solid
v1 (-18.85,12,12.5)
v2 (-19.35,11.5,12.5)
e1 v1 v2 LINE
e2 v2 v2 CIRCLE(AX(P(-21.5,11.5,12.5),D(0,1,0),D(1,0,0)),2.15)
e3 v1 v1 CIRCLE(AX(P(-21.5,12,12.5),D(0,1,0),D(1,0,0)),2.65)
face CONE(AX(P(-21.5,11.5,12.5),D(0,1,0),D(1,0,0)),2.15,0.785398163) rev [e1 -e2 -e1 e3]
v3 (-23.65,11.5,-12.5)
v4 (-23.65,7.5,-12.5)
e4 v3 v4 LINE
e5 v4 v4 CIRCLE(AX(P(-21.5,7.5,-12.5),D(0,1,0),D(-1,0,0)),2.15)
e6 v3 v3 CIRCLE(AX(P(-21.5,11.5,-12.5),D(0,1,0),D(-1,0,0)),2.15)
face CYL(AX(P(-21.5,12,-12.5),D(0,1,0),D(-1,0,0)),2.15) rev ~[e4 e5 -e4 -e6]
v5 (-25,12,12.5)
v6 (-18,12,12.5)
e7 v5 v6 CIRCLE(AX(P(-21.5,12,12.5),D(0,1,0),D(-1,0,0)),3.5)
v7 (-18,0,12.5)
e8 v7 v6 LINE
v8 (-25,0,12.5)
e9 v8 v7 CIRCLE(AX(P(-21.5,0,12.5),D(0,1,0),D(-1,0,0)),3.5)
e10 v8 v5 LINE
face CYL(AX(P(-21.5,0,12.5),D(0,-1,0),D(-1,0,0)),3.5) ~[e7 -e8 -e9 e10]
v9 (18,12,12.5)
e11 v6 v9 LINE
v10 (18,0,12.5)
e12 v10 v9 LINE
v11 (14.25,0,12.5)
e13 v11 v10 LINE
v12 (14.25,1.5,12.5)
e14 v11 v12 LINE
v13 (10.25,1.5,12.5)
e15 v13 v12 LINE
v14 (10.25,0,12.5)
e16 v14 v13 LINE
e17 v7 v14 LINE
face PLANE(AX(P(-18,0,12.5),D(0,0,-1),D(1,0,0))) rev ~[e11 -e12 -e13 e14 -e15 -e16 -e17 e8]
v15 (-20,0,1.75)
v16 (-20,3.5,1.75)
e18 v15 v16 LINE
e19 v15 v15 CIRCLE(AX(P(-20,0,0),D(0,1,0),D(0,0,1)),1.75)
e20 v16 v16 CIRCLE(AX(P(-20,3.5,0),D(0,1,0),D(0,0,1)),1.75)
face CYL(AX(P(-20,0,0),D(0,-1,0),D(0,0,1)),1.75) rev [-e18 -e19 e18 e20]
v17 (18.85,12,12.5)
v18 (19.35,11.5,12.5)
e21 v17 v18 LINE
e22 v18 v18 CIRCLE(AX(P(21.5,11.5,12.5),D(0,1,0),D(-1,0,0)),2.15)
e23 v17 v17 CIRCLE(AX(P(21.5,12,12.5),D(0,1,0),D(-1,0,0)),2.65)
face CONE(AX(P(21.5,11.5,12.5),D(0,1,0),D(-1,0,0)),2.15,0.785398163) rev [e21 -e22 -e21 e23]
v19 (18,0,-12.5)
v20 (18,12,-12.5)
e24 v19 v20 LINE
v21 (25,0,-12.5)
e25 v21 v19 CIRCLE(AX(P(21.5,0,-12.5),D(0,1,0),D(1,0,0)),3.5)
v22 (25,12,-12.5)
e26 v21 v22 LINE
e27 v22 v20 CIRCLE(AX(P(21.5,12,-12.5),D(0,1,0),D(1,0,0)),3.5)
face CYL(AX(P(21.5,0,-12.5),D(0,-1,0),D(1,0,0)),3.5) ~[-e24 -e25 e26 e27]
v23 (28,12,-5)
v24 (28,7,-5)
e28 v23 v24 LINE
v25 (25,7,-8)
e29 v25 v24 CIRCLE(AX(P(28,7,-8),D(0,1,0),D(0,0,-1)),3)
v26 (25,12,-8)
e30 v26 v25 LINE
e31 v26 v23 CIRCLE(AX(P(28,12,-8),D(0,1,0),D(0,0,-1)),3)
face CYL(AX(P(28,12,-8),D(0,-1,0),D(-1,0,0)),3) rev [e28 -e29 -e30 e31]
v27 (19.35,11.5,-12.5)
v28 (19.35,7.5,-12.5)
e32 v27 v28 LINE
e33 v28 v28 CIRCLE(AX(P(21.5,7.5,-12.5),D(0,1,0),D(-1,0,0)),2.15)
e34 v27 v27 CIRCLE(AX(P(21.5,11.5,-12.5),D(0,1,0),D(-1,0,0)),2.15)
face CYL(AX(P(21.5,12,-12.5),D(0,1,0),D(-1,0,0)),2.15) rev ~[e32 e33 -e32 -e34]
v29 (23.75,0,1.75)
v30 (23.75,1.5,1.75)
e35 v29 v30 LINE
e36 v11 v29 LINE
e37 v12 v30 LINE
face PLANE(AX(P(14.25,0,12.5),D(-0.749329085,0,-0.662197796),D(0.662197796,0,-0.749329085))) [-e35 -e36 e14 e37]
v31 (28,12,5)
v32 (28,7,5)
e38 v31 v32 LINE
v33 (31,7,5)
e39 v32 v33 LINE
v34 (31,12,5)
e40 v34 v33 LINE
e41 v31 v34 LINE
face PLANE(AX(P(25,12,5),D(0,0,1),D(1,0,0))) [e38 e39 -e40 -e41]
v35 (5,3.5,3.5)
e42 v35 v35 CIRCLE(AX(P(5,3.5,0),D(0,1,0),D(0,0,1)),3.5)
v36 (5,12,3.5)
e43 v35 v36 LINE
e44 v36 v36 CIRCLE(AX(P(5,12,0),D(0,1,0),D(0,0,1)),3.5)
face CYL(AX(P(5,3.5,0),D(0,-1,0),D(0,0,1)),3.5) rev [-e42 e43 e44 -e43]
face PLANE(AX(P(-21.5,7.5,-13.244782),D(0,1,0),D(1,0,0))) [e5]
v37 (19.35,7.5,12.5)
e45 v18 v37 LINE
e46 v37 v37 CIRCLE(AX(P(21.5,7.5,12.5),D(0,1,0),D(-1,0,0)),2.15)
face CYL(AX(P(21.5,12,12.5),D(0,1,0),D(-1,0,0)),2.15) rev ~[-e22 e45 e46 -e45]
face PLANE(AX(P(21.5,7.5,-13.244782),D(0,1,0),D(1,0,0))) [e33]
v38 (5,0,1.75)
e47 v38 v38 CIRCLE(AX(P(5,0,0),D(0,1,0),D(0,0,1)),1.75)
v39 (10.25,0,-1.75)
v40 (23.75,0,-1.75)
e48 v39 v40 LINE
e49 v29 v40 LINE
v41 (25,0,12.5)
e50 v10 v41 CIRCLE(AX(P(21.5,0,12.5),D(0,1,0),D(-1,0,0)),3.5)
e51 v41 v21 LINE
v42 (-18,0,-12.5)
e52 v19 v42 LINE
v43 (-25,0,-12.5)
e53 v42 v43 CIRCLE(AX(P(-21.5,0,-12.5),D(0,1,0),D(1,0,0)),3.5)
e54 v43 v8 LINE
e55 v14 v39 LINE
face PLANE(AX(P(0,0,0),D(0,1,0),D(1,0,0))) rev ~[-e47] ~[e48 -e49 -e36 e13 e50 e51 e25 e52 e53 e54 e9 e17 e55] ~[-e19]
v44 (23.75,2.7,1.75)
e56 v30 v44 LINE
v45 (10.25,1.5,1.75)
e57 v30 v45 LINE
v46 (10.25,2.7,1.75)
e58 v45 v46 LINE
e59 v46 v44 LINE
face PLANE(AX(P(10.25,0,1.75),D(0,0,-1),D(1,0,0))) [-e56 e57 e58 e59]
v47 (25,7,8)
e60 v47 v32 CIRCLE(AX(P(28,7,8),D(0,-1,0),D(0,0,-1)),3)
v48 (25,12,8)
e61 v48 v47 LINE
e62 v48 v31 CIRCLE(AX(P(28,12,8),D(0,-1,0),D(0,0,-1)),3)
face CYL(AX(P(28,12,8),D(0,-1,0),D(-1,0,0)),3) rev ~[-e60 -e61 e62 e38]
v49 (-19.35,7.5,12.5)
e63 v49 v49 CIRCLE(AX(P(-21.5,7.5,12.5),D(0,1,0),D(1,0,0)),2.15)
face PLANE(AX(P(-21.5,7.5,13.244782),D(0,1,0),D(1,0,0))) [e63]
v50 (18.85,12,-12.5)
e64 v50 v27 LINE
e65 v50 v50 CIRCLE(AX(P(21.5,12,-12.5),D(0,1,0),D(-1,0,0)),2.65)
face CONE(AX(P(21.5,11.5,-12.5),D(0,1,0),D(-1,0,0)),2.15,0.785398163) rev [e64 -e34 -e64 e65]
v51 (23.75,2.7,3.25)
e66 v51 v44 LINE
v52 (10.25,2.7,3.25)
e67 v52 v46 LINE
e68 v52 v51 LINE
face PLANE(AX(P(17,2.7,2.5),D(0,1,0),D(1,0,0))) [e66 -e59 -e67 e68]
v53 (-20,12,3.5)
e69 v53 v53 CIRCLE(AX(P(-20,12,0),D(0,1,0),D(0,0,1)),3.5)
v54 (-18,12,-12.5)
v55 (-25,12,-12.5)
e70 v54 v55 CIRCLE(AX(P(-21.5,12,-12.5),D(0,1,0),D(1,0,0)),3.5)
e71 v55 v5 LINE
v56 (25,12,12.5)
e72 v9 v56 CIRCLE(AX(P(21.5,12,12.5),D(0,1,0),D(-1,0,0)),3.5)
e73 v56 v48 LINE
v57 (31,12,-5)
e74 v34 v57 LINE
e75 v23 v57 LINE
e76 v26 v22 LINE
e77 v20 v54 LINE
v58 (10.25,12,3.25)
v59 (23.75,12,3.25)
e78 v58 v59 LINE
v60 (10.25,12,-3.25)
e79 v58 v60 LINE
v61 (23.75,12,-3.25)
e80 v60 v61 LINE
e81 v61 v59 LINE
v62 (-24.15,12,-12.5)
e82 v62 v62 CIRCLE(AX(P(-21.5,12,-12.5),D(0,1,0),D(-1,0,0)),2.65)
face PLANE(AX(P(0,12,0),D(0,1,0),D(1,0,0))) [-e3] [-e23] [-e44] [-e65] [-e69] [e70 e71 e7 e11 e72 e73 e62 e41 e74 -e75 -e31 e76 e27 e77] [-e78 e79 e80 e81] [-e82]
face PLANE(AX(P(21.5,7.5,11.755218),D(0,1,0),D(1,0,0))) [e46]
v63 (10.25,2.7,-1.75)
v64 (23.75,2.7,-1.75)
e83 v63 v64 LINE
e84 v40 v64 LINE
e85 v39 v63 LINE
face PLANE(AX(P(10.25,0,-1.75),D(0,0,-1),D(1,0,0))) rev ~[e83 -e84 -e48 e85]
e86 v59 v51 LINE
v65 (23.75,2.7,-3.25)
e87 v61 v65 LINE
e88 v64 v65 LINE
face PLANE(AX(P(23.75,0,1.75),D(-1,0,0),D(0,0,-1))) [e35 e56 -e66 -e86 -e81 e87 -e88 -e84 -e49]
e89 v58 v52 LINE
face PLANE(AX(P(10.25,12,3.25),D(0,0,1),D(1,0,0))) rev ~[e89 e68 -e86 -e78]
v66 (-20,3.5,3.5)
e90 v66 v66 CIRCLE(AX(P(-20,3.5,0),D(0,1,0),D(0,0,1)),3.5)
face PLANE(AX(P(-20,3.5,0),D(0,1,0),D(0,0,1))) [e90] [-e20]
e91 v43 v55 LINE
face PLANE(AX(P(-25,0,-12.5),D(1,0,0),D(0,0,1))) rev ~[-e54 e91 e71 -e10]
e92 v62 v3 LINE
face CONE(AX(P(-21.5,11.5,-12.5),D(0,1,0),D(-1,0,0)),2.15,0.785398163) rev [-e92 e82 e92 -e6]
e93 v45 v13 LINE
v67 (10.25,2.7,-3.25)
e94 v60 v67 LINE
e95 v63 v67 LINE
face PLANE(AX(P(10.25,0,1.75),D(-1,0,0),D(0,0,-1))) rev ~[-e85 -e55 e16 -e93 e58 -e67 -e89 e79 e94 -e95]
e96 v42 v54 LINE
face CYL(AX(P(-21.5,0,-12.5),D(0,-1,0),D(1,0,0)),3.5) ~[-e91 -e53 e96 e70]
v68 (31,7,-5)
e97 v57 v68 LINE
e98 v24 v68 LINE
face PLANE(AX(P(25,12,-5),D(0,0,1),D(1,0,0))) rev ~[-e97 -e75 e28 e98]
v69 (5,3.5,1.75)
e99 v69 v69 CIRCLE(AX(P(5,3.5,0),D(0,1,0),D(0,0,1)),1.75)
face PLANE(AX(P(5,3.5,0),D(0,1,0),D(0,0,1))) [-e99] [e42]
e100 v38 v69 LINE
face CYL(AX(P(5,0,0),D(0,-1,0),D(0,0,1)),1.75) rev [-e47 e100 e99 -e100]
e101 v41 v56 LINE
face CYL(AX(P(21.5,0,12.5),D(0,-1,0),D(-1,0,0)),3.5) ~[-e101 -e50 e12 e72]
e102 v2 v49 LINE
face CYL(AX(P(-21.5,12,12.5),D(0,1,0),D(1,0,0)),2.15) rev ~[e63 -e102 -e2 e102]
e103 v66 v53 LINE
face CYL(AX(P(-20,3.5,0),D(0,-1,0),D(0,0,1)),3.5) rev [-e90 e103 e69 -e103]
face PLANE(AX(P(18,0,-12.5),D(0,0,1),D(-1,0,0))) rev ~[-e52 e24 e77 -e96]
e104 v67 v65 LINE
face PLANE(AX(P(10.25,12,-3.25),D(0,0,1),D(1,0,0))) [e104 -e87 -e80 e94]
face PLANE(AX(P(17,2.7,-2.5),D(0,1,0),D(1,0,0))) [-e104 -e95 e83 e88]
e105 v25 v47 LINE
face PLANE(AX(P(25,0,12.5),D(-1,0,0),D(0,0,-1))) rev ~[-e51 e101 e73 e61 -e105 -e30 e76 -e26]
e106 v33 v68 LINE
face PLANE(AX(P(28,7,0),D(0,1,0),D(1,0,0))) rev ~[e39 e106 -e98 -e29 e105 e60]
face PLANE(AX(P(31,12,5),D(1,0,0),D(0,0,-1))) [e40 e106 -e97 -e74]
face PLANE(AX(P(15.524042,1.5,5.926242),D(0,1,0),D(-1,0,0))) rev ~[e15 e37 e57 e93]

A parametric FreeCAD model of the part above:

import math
import FreeCAD as App
import Part
import Sketcher

V = App.Vector


def edges_at(feature, points):
    """Names of the edges that pass closest to the given points."""
    edges = feature.Shape.Edges
    near = lambda p: min(range(len(edges)), key=lambda i: edges[i].distToShape(Part.Vertex(*p))[0])
    return sorted({f"Edge{near(p) + 1}" for p in points})

doc = App.newDocument("Part")
body = doc.addObject("PartDesign::Body", "Body")

# Sketch on XZ plane
sketch1 = body.newObject("Sketcher::SketchObject", "Sketch")
sketch1.AttachmentSupport = (doc.getObject("XZ_Plane"), [""])
sketch1.MapMode = "FlatFace"
sketch1.addGeometry([
    Part.LineSegment(V(-18, 12.5, 0), V(18, 12.5, 0)),  # 0
    Part.ArcOfCircle(Part.Circle(V(21.5, 12.5, 0), V(0, 0, 1), 3.5), math.radians(0), math.radians(180)),  # 1
    Part.LineSegment(V(25, 12.5, 0), V(25, -12.5, 0)),  # 2
    Part.ArcOfCircle(Part.Circle(V(21.5, -12.5, 0), V(0, 0, 1), 3.5), math.radians(180), math.radians(360)),  # 3
    Part.LineSegment(V(18, -12.5, 0), V(-18, -12.5, 0)),  # 4
    Part.ArcOfCircle(Part.Circle(V(-21.5, -12.5, 0), V(0, 0, 1), 3.5), math.radians(180), math.radians(360)),  # 5
    Part.LineSegment(V(-25, -12.5, 0), V(-25, 12.5, 0)),  # 6
    Part.ArcOfCircle(Part.Circle(V(-21.5, 12.5, 0), V(0, 0, 1), 3.5), math.radians(0), math.radians(180)),  # 7
    Part.Circle(V(-20, 0, 0), V(0, 0, 1), 1.8),  # 8
    Part.Circle(V(5, 0, 0), V(0, 0, 1), 1.8),  # 9
    Part.LineSegment(V(23.8, 1.8, 0), V(10.2, 1.8, 0)),  # 10
    Part.LineSegment(V(10.2, 1.8, 0), V(10.2, -1.8, 0)),  # 11
    Part.LineSegment(V(10.2, -1.8, 0), V(23.8, -1.8, 0)),  # 12
    Part.LineSegment(V(23.8, -1.8, 0), V(23.8, 1.8, 0)),  # 13
], False)
sketch1.addConstraint([
    Sketcher.Constraint("Coincident", 0, 2, 1, 2),
    Sketcher.Constraint("Tangent", 1, 1, 2, 1),
    Sketcher.Constraint("Tangent", 2, 2, 3, 2),
    Sketcher.Constraint("Coincident", 3, 1, 4, 1),
    Sketcher.Constraint("Coincident", 4, 2, 5, 2),
    Sketcher.Constraint("Tangent", 5, 1, 6, 1),
    Sketcher.Constraint("Tangent", 6, 2, 7, 2),
    Sketcher.Constraint("Coincident", 7, 1, 0, 1),
    Sketcher.Constraint("Coincident", 10, 2, 11, 1),
    Sketcher.Constraint("Coincident", 11, 2, 12, 1),
    Sketcher.Constraint("Coincident", 12, 2, 13, 1),
    Sketcher.Constraint("Coincident", 13, 2, 10, 1),
    Sketcher.Constraint("Horizontal", 0),
    Sketcher.Constraint("Vertical", 2),
    Sketcher.Constraint("Horizontal", 4),
    Sketcher.Constraint("Vertical", 6),
    Sketcher.Constraint("Horizontal", 10),
    Sketcher.Constraint("Vertical", 11),
    Sketcher.Constraint("Horizontal", 12),
    Sketcher.Constraint("Vertical", 13),
    Sketcher.Constraint("Equal", 1, 3),
    Sketcher.Constraint("Equal", 3, 5),
    Sketcher.Constraint("Equal", 5, 7),
    Sketcher.Constraint("Equal", 8, 9),
    Sketcher.Constraint("Symmetric", 1, 3, 5, 3, -1, 1),
    Sketcher.Constraint("PointOnObject", 8, 3, -1),
    Sketcher.Constraint("PointOnObject", 9, 3, -1),
    Sketcher.Constraint("Horizontal", 3, 3, 5, 3),
    Sketcher.Constraint("Horizontal", 1, 3, 7, 3),
    Sketcher.Constraint("Horizontal", 7, 3, 0, 2),
    Sketcher.Constraint("Horizontal", 2, 2, 3, 1),
    Sketcher.Constraint("Diameter", 8, 3.5),
    Sketcher.Constraint("Radius", 1, 3.5),
    Sketcher.Constraint("DistanceX", 0, 1, 0, 2, 36.0),
    Sketcher.Constraint("DistanceY", 2, 2, 2, 1, 25.0),
    Sketcher.Constraint("DistanceX", 10, 2, 10, 1, 13.5),
    Sketcher.Constraint("DistanceY", 11, 2, 11, 1, 3.5),
    Sketcher.Constraint("DistanceX", 8, 3, -1, 1, 20.0),
    Sketcher.Constraint("DistanceX", -1, 1, 9, 3, 5.0),
    Sketcher.Constraint("DistanceX", -1, 1, 10, 2, 10.25),
    Sketcher.Constraint("DistanceY", -1, 1, 10, 2, 1.75),
])
pad1 = body.newObject("PartDesign::Pad", "Pad")
pad1.Profile = sketch1
pad1.Length = 12
pad1.Reversed = True

# Sketch on XZ plane
sketch2 = body.newObject("Sketcher::SketchObject", "Sketch001")
sketch2.AttachmentSupport = (doc.getObject("XZ_Plane"), [""])
sketch2.MapMode = "FlatFace"
sketch2.AttachmentOffset = App.Placement(V(0, 0, -12), App.Rotation())
sketch2.addGeometry([
    Part.LineSegment(V(25, -5, 0), V(25, 5, 0)),
    Part.LineSegment(V(25, 5, 0), V(31, 5, 0)),
    Part.LineSegment(V(31, 5, 0), V(31, -5, 0)),
    Part.LineSegment(V(31, -5, 0), V(25, -5, 0)),
], False)
sketch2.addConstraint([
    Sketcher.Constraint("Coincident", 0, 2, 1, 1),
    Sketcher.Constraint("Coincident", 1, 2, 2, 1),
    Sketcher.Constraint("Coincident", 2, 2, 3, 1),
    Sketcher.Constraint("Coincident", 3, 2, 0, 1),
    Sketcher.Constraint("Vertical", 0),
    Sketcher.Constraint("Horizontal", 1),
    Sketcher.Constraint("Vertical", 2),
    Sketcher.Constraint("Horizontal", 3),
    Sketcher.Constraint("DistanceX", 1, 1, 1, 2, 6.0),
    Sketcher.Constraint("DistanceY", 0, 1, 0, 2, 10.0),
    Sketcher.Constraint("DistanceX", -1, 1, 0, 2, 25.0),
    Sketcher.Constraint("DistanceY", -1, 1, 0, 2, 5.0),
])
pad2 = body.newObject("PartDesign::Pad", "Pad001")
pad2.Profile = sketch2
pad2.Length = 5

# Sketch on XZ plane
sketch3 = body.newObject("Sketcher::SketchObject", "Sketch002")
sketch3.AttachmentSupport = (doc.getObject("XZ_Plane"), [""])
sketch3.MapMode = "FlatFace"
sketch3.AttachmentOffset = App.Placement(V(0, 0, -12), App.Rotation())
sketch3.addGeometry([
    Part.LineSegment(V(10.2, 1.8, 0), V(10.2, 3.2, 0)),  # 0
    Part.LineSegment(V(10.2, 3.2, 0), V(23.8, 3.2, 0)),  # 1
    Part.LineSegment(V(23.8, 3.2, 0), V(23.8, 1.8, 0)),  # 2
    Part.LineSegment(V(23.8, 1.8, 0), V(10.2, 1.8, 0)),  # 3
    Part.LineSegment(V(10.2, -3.2, 0), V(10.2, -1.8, 0)),  # 4
    Part.LineSegment(V(10.2, -1.8, 0), V(23.8, -1.8, 0)),  # 5
    Part.LineSegment(V(23.8, -1.8, 0), V(23.8, -3.2, 0)),  # 6
    Part.LineSegment(V(23.8, -3.2, 0), V(10.2, -3.2, 0)),  # 7
], False)
sketch3.addConstraint([
    Sketcher.Constraint("Coincident", 0, 2, 1, 1),
    Sketcher.Constraint("Coincident", 1, 2, 2, 1),
    Sketcher.Constraint("Coincident", 2, 2, 3, 1),
    Sketcher.Constraint("Coincident", 3, 2, 0, 1),
    Sketcher.Constraint("Coincident", 4, 2, 5, 1),
    Sketcher.Constraint("Coincident", 5, 2, 6, 1),
    Sketcher.Constraint("Coincident", 6, 2, 7, 1),
    Sketcher.Constraint("Coincident", 7, 2, 4, 1),
    Sketcher.Constraint("Vertical", 0),
    Sketcher.Constraint("Horizontal", 1),
    Sketcher.Constraint("Vertical", 2),
    Sketcher.Constraint("Horizontal", 3),
    Sketcher.Constraint("Vertical", 4),
    Sketcher.Constraint("Horizontal", 5),
    Sketcher.Constraint("Vertical", 6),
    Sketcher.Constraint("Horizontal", 7),
    Sketcher.Constraint("Symmetric", 3, 2, 4, 2, -1),
    Sketcher.Constraint("Symmetric", 1, 2, 6, 2, -1),
    Sketcher.Constraint("DistanceX", 1, 1, 1, 2, 13.5),
    Sketcher.Constraint("DistanceY", 0, 1, 0, 2, 1.5),
    Sketcher.Constraint("DistanceY", 4, 2, 0, 2, 5.0),
    Sketcher.Constraint("DistanceX", -1, 1, 0, 2, 10.25),
])
pocket1 = body.newObject("PartDesign::Pocket", "Pocket")
pocket1.Profile = sketch3
pocket1.Length = 9.3
pocket1.Reversed = True

# Sketch on XZ plane
sketch4 = body.newObject("Sketcher::SketchObject", "Sketch003")
sketch4.AttachmentSupport = (doc.getObject("XZ_Plane"), [""])
sketch4.MapMode = "FlatFace"
sketch4.AttachmentOffset = App.Placement(V(0, 0, -12), App.Rotation())
sketch4.addGeometry([
    Part.Circle(V(21.5, -12.5, 0), V(0, 0, 1), 2.1),
    Part.Circle(V(21.5, 12.5, 0), V(0, 0, 1), 2.1),
    Part.Circle(V(-21.5, -12.5, 0), V(0, 0, 1), 2.1),
    Part.Circle(V(-21.5, 12.5, 0), V(0, 0, 1), 2.1),
], False)
sketch4.addConstraint([
    Sketcher.Constraint("Equal", 0, 1),
    Sketcher.Constraint("Equal", 1, 2),
    Sketcher.Constraint("Equal", 2, 3),
    Sketcher.Constraint("Symmetric", 1, 3, 2, 3, -1, 1),
    Sketcher.Constraint("Symmetric", 0, 3, 3, 3, -1, 1),
    Sketcher.Constraint("Symmetric", 0, 3, 2, 3, -2),
    Sketcher.Constraint("Diameter", 0, 4.3),
    Sketcher.Constraint("DistanceY", 0, 3, 1, 3, 25.0),
    Sketcher.Constraint("DistanceX", 2, 3, 0, 3, 43.0),
])
pocket2 = body.newObject("PartDesign::Pocket", "Pocket001")
pocket2.Profile = sketch4
pocket2.Length = 4.5
pocket2.Reversed = True

# Sketch on XZ plane
sketch5 = body.newObject("Sketcher::SketchObject", "Sketch004")
sketch5.AttachmentSupport = (doc.getObject("XZ_Plane"), [""])
sketch5.MapMode = "FlatFace"
sketch5.AttachmentOffset = App.Placement(V(0, 0, -3.5), App.Rotation())
sketch5.addGeometry([
    Part.Circle(V(-20, 0, 0), V(0, 0, 1), 3.5),
    Part.Circle(V(-20, 0, 0), V(0, 0, 1), 1.8),
    Part.Circle(V(5, 0, 0), V(0, 0, 1), 3.5),
    Part.Circle(V(5, 0, 0), V(0, 0, 1), 1.8),
], False)
sketch5.addConstraint([
    Sketcher.Constraint("Coincident", 1, 3, 0, 3),
    Sketcher.Constraint("Coincident", 3, 3, 2, 3),
    Sketcher.Constraint("Equal", 0, 2),
    Sketcher.Constraint("Equal", 1, 3),
    Sketcher.Constraint("PointOnObject", 0, 3, -1),
    Sketcher.Constraint("PointOnObject", 2, 3, -1),
    Sketcher.Constraint("Diameter", 0, 7.0),
    Sketcher.Constraint("Diameter", 1, 3.5),
    Sketcher.Constraint("DistanceX", 0, 3, -1, 1, 20.0),
    Sketcher.Constraint("DistanceX", -1, 1, 2, 3, 5.0),
])
pocket3 = body.newObject("PartDesign::Pocket", "Pocket002")
pocket3.Profile = sketch5
pocket3.Length = 8.5
doc.recompute()

fillet = body.newObject("PartDesign::Fillet", "Fillet")
fillet.Base = (pocket3, edges_at(pocket3, [(25, 9.5, -5), (25, 9.5, 5)]))
fillet.Radius = 3
doc.recompute()

chamfer = body.newObject("PartDesign::Chamfer", "Chamfer")
chamfer.Base = (fillet, edges_at(fillet, [
    (23.65, 12, 12.5),
    (-19.35, 12, -12.5),
    (-23.65, 12, 12.5),
    (23.65, 12, -12.5),
]))
chamfer.Size = 0.5

# Sketch on XZ plane
sketch6 = body.newObject("Sketcher::SketchObject", "Sketch005")
sketch6.AttachmentSupport = (doc.getObject("XZ_Plane"), [""])
sketch6.MapMode = "FlatFace"
sketch6.addGeometry([
    Part.LineSegment(V(10.2, 12.5, 0), V(10.2, 1.8, 0)),
    Part.LineSegment(V(10.2, 1.8, 0), V(23.8, 1.8, 0)),
    Part.LineSegment(V(23.8, 1.8, 0), V(14.2, 12.5, 0)),
    Part.LineSegment(V(14.2, 12.5, 0), V(10.2, 12.5, 0)),
], False)
sketch6.addConstraint([
    Sketcher.Constraint("Coincident", 0, 2, 1, 1),
    Sketcher.Constraint("Coincident", 1, 2, 2, 1),
    Sketcher.Constraint("Coincident", 2, 2, 3, 1),
    Sketcher.Constraint("Coincident", 3, 2, 0, 1),
    Sketcher.Constraint("Vertical", 0),
    Sketcher.Constraint("Horizontal", 1),
    Sketcher.Constraint("Horizontal", 3),
    Sketcher.Constraint("DistanceX", 3, 2, 3, 1, 4.0),
    Sketcher.Constraint("DistanceX", 1, 1, 1, 2, 13.5),
    Sketcher.Constraint("DistanceY", 0, 2, 0, 1, 10.75),
    Sketcher.Constraint("DistanceY", -1, 1, 2, 2, 12.5),
    Sketcher.Constraint("DistanceX", -1, 1, 0, 2, 10.25),
])
pocket4 = body.newObject("PartDesign::Pocket", "Pocket003")
pocket4.Profile = sketch6
pocket4.Length = 1.5

doc.recompute()
